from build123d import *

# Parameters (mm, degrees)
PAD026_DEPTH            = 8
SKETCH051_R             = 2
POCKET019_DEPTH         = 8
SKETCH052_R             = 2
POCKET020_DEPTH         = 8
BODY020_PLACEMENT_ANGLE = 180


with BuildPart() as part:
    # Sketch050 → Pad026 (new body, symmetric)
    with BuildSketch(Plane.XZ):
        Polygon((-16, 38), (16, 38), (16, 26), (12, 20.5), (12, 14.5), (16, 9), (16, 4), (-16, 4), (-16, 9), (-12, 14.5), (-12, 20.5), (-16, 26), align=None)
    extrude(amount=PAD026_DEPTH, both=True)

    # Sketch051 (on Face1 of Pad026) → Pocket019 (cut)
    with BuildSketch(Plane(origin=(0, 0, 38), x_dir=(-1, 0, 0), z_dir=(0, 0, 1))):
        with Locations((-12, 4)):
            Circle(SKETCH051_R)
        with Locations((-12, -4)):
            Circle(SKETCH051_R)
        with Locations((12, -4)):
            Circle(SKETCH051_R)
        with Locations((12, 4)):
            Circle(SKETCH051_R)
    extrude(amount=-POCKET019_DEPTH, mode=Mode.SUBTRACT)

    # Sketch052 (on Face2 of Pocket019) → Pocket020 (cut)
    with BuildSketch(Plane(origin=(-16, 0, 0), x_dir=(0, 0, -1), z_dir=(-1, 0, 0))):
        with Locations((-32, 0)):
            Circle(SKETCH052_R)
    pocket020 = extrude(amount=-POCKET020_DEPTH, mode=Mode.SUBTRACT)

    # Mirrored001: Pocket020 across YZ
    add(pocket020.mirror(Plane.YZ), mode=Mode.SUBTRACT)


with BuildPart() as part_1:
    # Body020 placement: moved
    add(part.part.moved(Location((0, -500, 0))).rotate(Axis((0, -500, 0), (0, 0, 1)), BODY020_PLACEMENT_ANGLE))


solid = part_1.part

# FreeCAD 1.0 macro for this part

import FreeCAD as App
import Part
import Sketcher


def add_polygon(sketch, points):
    """Adds a closed chain of lines whose ends are joined by coincident constraints."""
    first, n = sketch.GeometryCount, len(points)
    for a, b in zip(points, points[1:] + points[:1]):
        sketch.addGeometry(Part.LineSegment(App.Vector(*a, 0), App.Vector(*b, 0)), False)
    for i in range(n):
        sketch.addConstraint(Sketcher.Constraint("Coincident", first + i, 2, first + (i + 1) % n, 1))

doc = App.newDocument("Part")
body = doc.addObject("PartDesign::Body", "Body")

sketch1 = body.newObject("Sketcher::SketchObject", "Sketch")
sketch1.AttachmentSupport = (doc.getObject("XZ_Plane"), [""])
sketch1.MapMode = "FlatFace"
add_polygon(sketch1, [(16, 38), (-16, 38), (-16, 26), (-12, 20), (-12, 14), (-16, 9), (-16, 4), (16, 4), (16, 9), (12, 14), (12, 20), (16, 26)])
sketch1.addConstraint(Sketcher.Constraint("Horizontal", 0))
sketch1.addConstraint(Sketcher.Constraint("Vertical", 1))
sketch1.addConstraint(Sketcher.Constraint("Vertical", 3))
sketch1.addConstraint(Sketcher.Constraint("Vertical", 5))
sketch1.addConstraint(Sketcher.Constraint("Horizontal", 6))
sketch1.addConstraint(Sketcher.Constraint("Vertical", 7))
sketch1.addConstraint(Sketcher.Constraint("Vertical", 9))
sketch1.addConstraint(Sketcher.Constraint("Vertical", 11))
sketch1.addConstraint(Sketcher.Constraint("Symmetric", 4, 2, 7, 2, -2))
sketch1.addConstraint(Sketcher.Constraint("Symmetric", 3, 2, 8, 2, -2))
sketch1.addConstraint(Sketcher.Constraint("Symmetric", 1, 2, 10, 2, -2))
sketch1.addConstraint(Sketcher.Constraint("Parallel", 2, 8))
sketch1.addConstraint(Sketcher.Constraint("Parallel", 4, 10))
sketch1.addConstraint(Sketcher.Constraint("Vertical", 1, 2, 4, 2))
sketch1.addConstraint(Sketcher.Constraint("DistanceX", 0, 2, 0, 1, 32.0))
sketch1.addConstraint(Sketcher.Constraint("DistanceY", 1, 2, 1, 1, 12.0))
sketch1.addConstraint(Sketcher.Constraint("DistanceY", 3, 2, 3, 1, 6.0))
sketch1.addConstraint(Sketcher.Constraint("DistanceY", 5, 2, 5, 1, 5.0))
sketch1.addConstraint(Sketcher.Constraint("DistanceY", -1, 1, 0, 2, 38.0))
sketch1.addConstraint(Sketcher.Constraint("DistanceX", 2, 2, -1, 1, 12.0))
sketch1.addConstraint(Sketcher.Constraint("DistanceY", -1, 1, 4, 2, 9.0))
pad1 = body.newObject("PartDesign::Pad", "Pad")
pad1.Profile = sketch1
pad1.Length = 16
pad1.Midplane = True

sketch2 = body.newObject("Sketcher::SketchObject", "Sketch001")
sketch2.AttachmentSupport = (doc.getObject("XY_Plane"), [""])
sketch2.MapMode = "FlatFace"
sketch2.AttachmentOffset = App.Placement(App.Vector(0, 0, 38), App.Rotation())
sketch2.addGeometry(Part.Circle(App.Vector(12, -4, 0), App.Vector(0, 0, 1), 2), False)
sketch2.addGeometry(Part.Circle(App.Vector(12, 4, 0), App.Vector(0, 0, 1), 2), False)
sketch2.addGeometry(Part.Circle(App.Vector(-12, 4, 0), App.Vector(0, 0, 1), 2), False)
sketch2.addGeometry(Part.Circle(App.Vector(-12, -4, 0), App.Vector(0, 0, 1), 2), False)
sketch2.addConstraint(Sketcher.Constraint("Equal", 0, 1))
sketch2.addConstraint(Sketcher.Constraint("Equal", 1, 2))
sketch2.addConstraint(Sketcher.Constraint("Equal", 2, 3))
sketch2.addConstraint(Sketcher.Constraint("Symmetric", 0, 3, 2, 3, -1, 1))
sketch2.addConstraint(Sketcher.Constraint("Symmetric", 1, 3, 3, 3, -1, 1))
sketch2.addConstraint(Sketcher.Constraint("Symmetric", 1, 3, 2, 3, -2))
sketch2.addConstraint(Sketcher.Constraint("Diameter", 0, 4.0))
sketch2.addConstraint(Sketcher.Constraint("DistanceX", -1, 1, 0, 3, 12.0))
sketch2.addConstraint(Sketcher.Constraint("DistanceY", 0, 3, -1, 1, 4.0))
pocket1 = body.newObject("PartDesign::Pocket", "Pocket")
pocket1.Profile = sketch2
pocket1.Length = 8

sketch3 = body.newObject("Sketcher::SketchObject", "Sketch002")
sketch3.AttachmentSupport = (doc.getObject("YZ_Plane"), [""])
sketch3.MapMode = "FlatFace"
sketch3.AttachmentOffset = App.Placement(App.Vector(0, 0, -16), App.Rotation())
sketch3.addGeometry(Part.Circle(App.Vector(0, 32, 0), App.Vector(0, 0, 1), 2), False)
sketch3.addConstraint(Sketcher.Constraint("PointOnObject", 0, 3, -2))
sketch3.addConstraint(Sketcher.Constraint("Diameter", 0, 4.0))
sketch3.addConstraint(Sketcher.Constraint("DistanceY", -1, 1, 0, 3, 32.0))
pocket2 = body.newObject("PartDesign::Pocket", "Pocket001")
pocket2.Profile = sketch3
pocket2.Length = 8
pocket2.Reversed = True
doc.recompute()

mirrored = body.newObject("PartDesign::Mirrored", "Mirrored")
mirrored.Originals = [pocket2]
mirrored.MirrorPlane = (doc.getObject("YZ_Plane"), [""])
body.Tip = mirrored
body2 = doc.addObject("PartDesign::Body", "Body001")
doc.recompute()

body.Placement = App.Placement(App.Vector(0, -500, 0), App.Rotation(App.Vector(0, 0, 1), 180))
boolean = body2.newObject("PartDesign::Boolean", "Boolean")
boolean.Type = "Fuse"
boolean.addObjects([body])

doc.recompute()
